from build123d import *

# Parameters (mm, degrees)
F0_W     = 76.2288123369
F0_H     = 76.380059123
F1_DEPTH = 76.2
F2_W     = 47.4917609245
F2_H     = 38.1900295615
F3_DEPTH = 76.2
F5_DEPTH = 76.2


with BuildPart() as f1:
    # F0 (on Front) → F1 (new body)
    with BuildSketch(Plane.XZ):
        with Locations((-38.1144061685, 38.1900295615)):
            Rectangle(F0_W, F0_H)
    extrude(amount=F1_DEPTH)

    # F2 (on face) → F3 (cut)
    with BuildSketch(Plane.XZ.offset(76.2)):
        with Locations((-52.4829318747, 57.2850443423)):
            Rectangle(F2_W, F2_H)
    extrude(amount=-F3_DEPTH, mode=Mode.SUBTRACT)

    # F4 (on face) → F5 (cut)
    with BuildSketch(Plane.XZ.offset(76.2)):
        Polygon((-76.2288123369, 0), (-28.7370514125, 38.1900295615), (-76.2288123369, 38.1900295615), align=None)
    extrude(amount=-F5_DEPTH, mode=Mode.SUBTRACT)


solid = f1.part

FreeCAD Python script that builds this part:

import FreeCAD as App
import Part
import Sketcher
from FreeCAD import Vector
Q = App.Units.Quantity


def add_polygon(sketch, points):
    """Adds a closed chain of lines whose ends are joined by coincident constraints."""
    first, n = sketch.GeometryCount, len(points)
    for a, b in zip(points, points[1:] + points[:1]):
        sketch.addGeometry(Part.LineSegment(App.Vector(*a, 0), App.Vector(*b, 0)), False)
    for i in range(n):
        sketch.addConstraint(Sketcher.Constraint("Coincident", first + i, 2, first + (i + 1) % n, 1))

doc = App.newDocument("Part")
body = doc.addObject("PartDesign::Body", "Body")

# Sketch on XZ plane
sketch1 = doc.addObject("Sketcher::SketchObject", "Sketch")
body.addObject(sketch1)
sketch1.AttachmentSupport = (doc.XZ_Plane, [""])
sketch1.MapMode = "FlatFace"
add_polygon(sketch1, [(-76, 76), (-76, 0), (0, 0), (0, 76)])  # lines 0-3
sketch1.addConstraint(Sketcher.Constraint("Vertical", 0))
sketch1.addConstraint(Sketcher.Constraint("Horizontal", 1))
sketch1.addConstraint(Sketcher.Constraint("Vertical", 2))
sketch1.addConstraint(Sketcher.Constraint("Horizontal", 3))
sketch1.addConstraint(Sketcher.Constraint("Coincident", 1, 2, -1, 1))
sketch1.addConstraint(Sketcher.Constraint("DistanceY", 0, 2, 0, 1, Q("76.380059 mm")))
sketch1.addConstraint(Sketcher.Constraint("DistanceX", 1, 1, 1, 2, Q("76.228812 mm")))
pad1 = doc.addObject("PartDesign::Pad", "Pad")
body.addObject(pad1)
pad1.Profile = sketch1
pad1.Length = Q("3 in")

# Sketch on XZ plane
sketch2 = doc.addObject("Sketcher::SketchObject", "Sketch001")
body.addObject(sketch2)
sketch2.AttachmentSupport = (doc.XZ_Plane, [""])
sketch2.MapMode = "FlatFace"
sketch2.AttachmentOffset = App.Placement(Vector(0, 0, 3 * 25.4), App.Rotation())
add_polygon(sketch2, [(-76, 76), (-76, 38), (-29, 38), (-29, 76)])  # lines 0-3
sketch2.addConstraint(Sketcher.Constraint("Vertical", 0))
sketch2.addConstraint(Sketcher.Constraint("Horizontal", 1))
sketch2.addConstraint(Sketcher.Constraint("Vertical", 2))
sketch2.addConstraint(Sketcher.Constraint("Horizontal", 3))
sketch2.addConstraint(Sketcher.Constraint("DistanceX", 1, 1, 1, 2, Q("47.491761 mm")))
sketch2.addConstraint(Sketcher.Constraint("DistanceY", 0, 2, 0, 1, Q("38.19003 mm")))
sketch2.addConstraint(Sketcher.Constraint("DistanceY", -1, 1, 0, 2, Q("38.19003 mm")))
sketch2.addConstraint(Sketcher.Constraint("DistanceX", 1, 2, -1, 1, Q("28.737051 mm")))
pocket1 = doc.addObject("PartDesign::Pocket", "Pocket")
body.addObject(pocket1)
pocket1.Profile = sketch2
pocket1.Length = Q("3 in")

# Sketch on XZ plane
sketch3 = doc.addObject("Sketcher::SketchObject", "Sketch002")
body.addObject(sketch3)
sketch3.AttachmentSupport = (doc.XZ_Plane, [""])
sketch3.MapMode = "FlatFace"
sketch3.AttachmentOffset = App.Placement(Vector(0, 0, 3 * 25.4), App.Rotation())
add_polygon(sketch3, [(-76, 0), (-29, 38), (-76, 38)])  # lines 0-2
sketch3.addConstraint(Sketcher.Constraint("Horizontal", 1))
sketch3.addConstraint(Sketcher.Constraint("Vertical", 2))
sketch3.addConstraint(Sketcher.Constraint("PointOnObject", 2, 2, -1))
sketch3.addConstraint(Sketcher.Constraint("DistanceX", 1, 2, 1, 1, Q("47.491761 mm")))
sketch3.addConstraint(Sketcher.Constraint("DistanceY", 2, 2, 2, 1, Q("38.19003 mm")))
sketch3.addConstraint(Sketcher.Constraint("DistanceX", 0, 2, -1, 1, Q("28.737051 mm")))
pocket2 = doc.addObject("PartDesign::Pocket", "Pocket001")
body.addObject(pocket2)
pocket2.Profile = sketch3
pocket2.Length = Q("3 in")

doc.recompute()
